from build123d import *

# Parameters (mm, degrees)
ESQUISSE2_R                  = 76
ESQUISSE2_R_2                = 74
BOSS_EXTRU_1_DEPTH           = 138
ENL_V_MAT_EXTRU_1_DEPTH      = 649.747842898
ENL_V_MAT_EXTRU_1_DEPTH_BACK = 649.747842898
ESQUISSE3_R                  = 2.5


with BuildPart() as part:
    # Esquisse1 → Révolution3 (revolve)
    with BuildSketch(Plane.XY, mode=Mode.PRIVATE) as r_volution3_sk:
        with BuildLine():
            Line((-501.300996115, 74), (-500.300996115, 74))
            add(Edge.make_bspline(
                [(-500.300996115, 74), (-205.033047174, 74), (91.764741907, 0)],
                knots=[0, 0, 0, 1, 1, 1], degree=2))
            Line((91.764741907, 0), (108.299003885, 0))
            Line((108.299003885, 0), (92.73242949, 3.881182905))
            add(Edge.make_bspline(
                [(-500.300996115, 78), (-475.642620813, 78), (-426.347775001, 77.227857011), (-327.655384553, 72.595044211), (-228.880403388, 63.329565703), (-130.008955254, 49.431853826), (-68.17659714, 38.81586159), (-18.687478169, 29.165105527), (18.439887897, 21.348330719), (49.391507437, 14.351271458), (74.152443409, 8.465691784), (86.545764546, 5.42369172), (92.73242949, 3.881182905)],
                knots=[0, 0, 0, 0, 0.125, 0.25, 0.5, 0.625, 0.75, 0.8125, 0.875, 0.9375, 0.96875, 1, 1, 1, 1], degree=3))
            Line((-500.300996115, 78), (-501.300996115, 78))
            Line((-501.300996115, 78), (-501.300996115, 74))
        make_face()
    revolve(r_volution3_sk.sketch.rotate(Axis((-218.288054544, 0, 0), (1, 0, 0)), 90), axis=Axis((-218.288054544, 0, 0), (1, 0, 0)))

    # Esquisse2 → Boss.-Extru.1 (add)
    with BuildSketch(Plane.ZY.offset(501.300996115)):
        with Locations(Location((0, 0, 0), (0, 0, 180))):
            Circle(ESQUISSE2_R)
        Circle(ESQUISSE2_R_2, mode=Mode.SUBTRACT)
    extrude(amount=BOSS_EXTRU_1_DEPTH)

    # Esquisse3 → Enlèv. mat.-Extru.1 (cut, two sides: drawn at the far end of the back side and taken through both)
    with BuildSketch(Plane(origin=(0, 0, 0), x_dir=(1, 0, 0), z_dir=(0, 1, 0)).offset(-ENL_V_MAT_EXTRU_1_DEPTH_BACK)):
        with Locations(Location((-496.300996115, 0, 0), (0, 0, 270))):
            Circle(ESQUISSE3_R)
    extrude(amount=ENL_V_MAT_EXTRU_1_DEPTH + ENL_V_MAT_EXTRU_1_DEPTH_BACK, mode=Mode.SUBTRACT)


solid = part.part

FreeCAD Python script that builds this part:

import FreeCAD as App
import Part
import Sketcher

doc = App.newDocument("Part")
body = doc.addObject("PartDesign::Body", "Body")

# Sketch on XY plane
sketch1 = doc.addObject("Sketcher::SketchObject", "Sketch")
body.addObject(sketch1)
sketch1.AttachmentSupport = (doc.XY_Plane, [""])
sketch1.MapMode = "FlatFace"
sketch1.addGeometry([
    Part.LineSegment(App.Vector(-501.300996, 74, 0), App.Vector(-500.300996, 74, 0)),  # 0
    Part.BSplineCurve([App.Vector(-500.300996, 74, 0), App.Vector(-205.033047, 74, 0), App.Vector(91.764742, 0, 0)], [3, 3], [0, 1], False, 2, [1, 1, 1], False),  # 1
    Part.LineSegment(App.Vector(91.764742, 0, 0), App.Vector(108.299004, 0, 0)),  # 2
    Part.LineSegment(App.Vector(108.299004, 0, 0), App.Vector(92.732429, 3.881183, 0)),  # 3
    Part.BSplineCurve([App.Vector(-500.300996, 78, 0), App.Vector(-475.642621, 78, 0), App.Vector(-426.347775, 77.227857, 0), App.Vector(-327.655385, 72.595044, 0), App.Vector(-228.880403, 63.329566, 0), App.Vector(-130.008955, 49.431854, 0), App.Vector(-68.176597, 38.815862, 0), App.Vector(-18.687478, 29.165106, 0), App.Vector(18.439888, 21.348331, 0), App.Vector(49.391507, 14.351271, 0), App.Vector(74.152443, 8.465692, 0), App.Vector(86.545765, 5.423692, 0), App.Vector(92.732429, 3.881183, 0)], [4, 1, 1, 1, 1, 1, 1, 1, 1, 1, 4], [0, 0.125, 0.25, 0.5, 0.625, 0.75, 0.8125, 0.875, 0.9375, 0.96875, 1], False, 3, [1, 1, 1, 1, 1, 1, 1, 1, 1, 1, 1, 1, 1], False),  # 4
    Part.LineSegment(App.Vector(-500.300996, 78, 0), App.Vector(-501.300996, 78, 0)),  # 5
    Part.LineSegment(App.Vector(-501.300996, 78, 0), App.Vector(-501.300996, 74, 0)),  # 6
], False)
sketch1.addConstraint([
    Sketcher.Constraint("Block", 1),
    Sketcher.Constraint("Block", 4),
    Sketcher.Constraint("Coincident", 0, 2, 1, 1),
    Sketcher.Constraint("Coincident", 1, 2, 2, 1),
    Sketcher.Constraint("Coincident", 2, 2, 3, 1),
    Sketcher.Constraint("Coincident", 3, 2, 4, 2),
    Sketcher.Constraint("Coincident", 4, 1, 5, 1),
    Sketcher.Constraint("Coincident", 5, 2, 6, 1),
    Sketcher.Constraint("Coincident", 6, 2, 0, 1),
    Sketcher.Constraint("Horizontal", 0),
    Sketcher.Constraint("Horizontal", 2),
    Sketcher.Constraint("Horizontal", 5),
    Sketcher.Constraint("Vertical", 6),
    Sketcher.Constraint("DistanceX", 0, 1, 0, 2, 1.0),
    Sketcher.Constraint("DistanceX", 0, 2, 2, 2, 608.6),
])
revolution = doc.addObject("PartDesign::Revolution", "Revolution")
body.addObject(revolution)
revolution.Profile = sketch1
revolution.ReferenceAxis = (sketch1, ["H_Axis"])
revolution.Angle = 360

# Sketch on YZ plane
sketch2 = doc.addObject("Sketcher::SketchObject", "Sketch001")
body.addObject(sketch2)
sketch2.AttachmentSupport = (doc.YZ_Plane, [""])
sketch2.MapMode = "FlatFace"
sketch2.AttachmentOffset = App.Placement(App.Vector(0, 0, -501.300996), App.Rotation())
sketch2.addGeometry([
    Part.Circle(App.Vector(0, 0, 0), App.Vector(0, 0, 1), 76),
    Part.Circle(App.Vector(0, 0, 0), App.Vector(0, 0, 1), 74),
], False)
sketch2.addConstraint([
    Sketcher.Constraint("Coincident", 0, 3, -1, 1),
    Sketcher.Constraint("Coincident", 1, 3, -1, 1),
    Sketcher.Constraint("Diameter", 0, 152.0),
    Sketcher.Constraint("Diameter", 1, 148.0),
])
pad1 = doc.addObject("PartDesign::Pad", "Pad")
body.addObject(pad1)
pad1.Profile = sketch2
pad1.Length = 138
pad1.Reversed = True

# Sketch on XZ plane
sketch3 = doc.addObject("Sketcher::SketchObject", "Sketch002")
body.addObject(sketch3)
sketch3.AttachmentSupport = (doc.XZ_Plane, [""])
sketch3.MapMode = "FlatFace"
sketch3.addGeometry(Part.Circle(App.Vector(-496.300996, 0, 0), App.Vector(0, 0, 1), 2.5), False)
sketch3.addConstraint([
    Sketcher.Constraint("PointOnObject", 0, 3, -1),
    Sketcher.Constraint("Diameter", 0, 5.0),
    Sketcher.Constraint("DistanceX", 0, 3, -1, 1, 496.300996),
])
pocket1 = doc.addObject("PartDesign::Pocket", "Pocket")
body.addObject(pocket1)
pocket1.Profile = sketch3
pocket1.Type = "ThroughAll"
pocket1.Midplane = True

doc.recompute()
